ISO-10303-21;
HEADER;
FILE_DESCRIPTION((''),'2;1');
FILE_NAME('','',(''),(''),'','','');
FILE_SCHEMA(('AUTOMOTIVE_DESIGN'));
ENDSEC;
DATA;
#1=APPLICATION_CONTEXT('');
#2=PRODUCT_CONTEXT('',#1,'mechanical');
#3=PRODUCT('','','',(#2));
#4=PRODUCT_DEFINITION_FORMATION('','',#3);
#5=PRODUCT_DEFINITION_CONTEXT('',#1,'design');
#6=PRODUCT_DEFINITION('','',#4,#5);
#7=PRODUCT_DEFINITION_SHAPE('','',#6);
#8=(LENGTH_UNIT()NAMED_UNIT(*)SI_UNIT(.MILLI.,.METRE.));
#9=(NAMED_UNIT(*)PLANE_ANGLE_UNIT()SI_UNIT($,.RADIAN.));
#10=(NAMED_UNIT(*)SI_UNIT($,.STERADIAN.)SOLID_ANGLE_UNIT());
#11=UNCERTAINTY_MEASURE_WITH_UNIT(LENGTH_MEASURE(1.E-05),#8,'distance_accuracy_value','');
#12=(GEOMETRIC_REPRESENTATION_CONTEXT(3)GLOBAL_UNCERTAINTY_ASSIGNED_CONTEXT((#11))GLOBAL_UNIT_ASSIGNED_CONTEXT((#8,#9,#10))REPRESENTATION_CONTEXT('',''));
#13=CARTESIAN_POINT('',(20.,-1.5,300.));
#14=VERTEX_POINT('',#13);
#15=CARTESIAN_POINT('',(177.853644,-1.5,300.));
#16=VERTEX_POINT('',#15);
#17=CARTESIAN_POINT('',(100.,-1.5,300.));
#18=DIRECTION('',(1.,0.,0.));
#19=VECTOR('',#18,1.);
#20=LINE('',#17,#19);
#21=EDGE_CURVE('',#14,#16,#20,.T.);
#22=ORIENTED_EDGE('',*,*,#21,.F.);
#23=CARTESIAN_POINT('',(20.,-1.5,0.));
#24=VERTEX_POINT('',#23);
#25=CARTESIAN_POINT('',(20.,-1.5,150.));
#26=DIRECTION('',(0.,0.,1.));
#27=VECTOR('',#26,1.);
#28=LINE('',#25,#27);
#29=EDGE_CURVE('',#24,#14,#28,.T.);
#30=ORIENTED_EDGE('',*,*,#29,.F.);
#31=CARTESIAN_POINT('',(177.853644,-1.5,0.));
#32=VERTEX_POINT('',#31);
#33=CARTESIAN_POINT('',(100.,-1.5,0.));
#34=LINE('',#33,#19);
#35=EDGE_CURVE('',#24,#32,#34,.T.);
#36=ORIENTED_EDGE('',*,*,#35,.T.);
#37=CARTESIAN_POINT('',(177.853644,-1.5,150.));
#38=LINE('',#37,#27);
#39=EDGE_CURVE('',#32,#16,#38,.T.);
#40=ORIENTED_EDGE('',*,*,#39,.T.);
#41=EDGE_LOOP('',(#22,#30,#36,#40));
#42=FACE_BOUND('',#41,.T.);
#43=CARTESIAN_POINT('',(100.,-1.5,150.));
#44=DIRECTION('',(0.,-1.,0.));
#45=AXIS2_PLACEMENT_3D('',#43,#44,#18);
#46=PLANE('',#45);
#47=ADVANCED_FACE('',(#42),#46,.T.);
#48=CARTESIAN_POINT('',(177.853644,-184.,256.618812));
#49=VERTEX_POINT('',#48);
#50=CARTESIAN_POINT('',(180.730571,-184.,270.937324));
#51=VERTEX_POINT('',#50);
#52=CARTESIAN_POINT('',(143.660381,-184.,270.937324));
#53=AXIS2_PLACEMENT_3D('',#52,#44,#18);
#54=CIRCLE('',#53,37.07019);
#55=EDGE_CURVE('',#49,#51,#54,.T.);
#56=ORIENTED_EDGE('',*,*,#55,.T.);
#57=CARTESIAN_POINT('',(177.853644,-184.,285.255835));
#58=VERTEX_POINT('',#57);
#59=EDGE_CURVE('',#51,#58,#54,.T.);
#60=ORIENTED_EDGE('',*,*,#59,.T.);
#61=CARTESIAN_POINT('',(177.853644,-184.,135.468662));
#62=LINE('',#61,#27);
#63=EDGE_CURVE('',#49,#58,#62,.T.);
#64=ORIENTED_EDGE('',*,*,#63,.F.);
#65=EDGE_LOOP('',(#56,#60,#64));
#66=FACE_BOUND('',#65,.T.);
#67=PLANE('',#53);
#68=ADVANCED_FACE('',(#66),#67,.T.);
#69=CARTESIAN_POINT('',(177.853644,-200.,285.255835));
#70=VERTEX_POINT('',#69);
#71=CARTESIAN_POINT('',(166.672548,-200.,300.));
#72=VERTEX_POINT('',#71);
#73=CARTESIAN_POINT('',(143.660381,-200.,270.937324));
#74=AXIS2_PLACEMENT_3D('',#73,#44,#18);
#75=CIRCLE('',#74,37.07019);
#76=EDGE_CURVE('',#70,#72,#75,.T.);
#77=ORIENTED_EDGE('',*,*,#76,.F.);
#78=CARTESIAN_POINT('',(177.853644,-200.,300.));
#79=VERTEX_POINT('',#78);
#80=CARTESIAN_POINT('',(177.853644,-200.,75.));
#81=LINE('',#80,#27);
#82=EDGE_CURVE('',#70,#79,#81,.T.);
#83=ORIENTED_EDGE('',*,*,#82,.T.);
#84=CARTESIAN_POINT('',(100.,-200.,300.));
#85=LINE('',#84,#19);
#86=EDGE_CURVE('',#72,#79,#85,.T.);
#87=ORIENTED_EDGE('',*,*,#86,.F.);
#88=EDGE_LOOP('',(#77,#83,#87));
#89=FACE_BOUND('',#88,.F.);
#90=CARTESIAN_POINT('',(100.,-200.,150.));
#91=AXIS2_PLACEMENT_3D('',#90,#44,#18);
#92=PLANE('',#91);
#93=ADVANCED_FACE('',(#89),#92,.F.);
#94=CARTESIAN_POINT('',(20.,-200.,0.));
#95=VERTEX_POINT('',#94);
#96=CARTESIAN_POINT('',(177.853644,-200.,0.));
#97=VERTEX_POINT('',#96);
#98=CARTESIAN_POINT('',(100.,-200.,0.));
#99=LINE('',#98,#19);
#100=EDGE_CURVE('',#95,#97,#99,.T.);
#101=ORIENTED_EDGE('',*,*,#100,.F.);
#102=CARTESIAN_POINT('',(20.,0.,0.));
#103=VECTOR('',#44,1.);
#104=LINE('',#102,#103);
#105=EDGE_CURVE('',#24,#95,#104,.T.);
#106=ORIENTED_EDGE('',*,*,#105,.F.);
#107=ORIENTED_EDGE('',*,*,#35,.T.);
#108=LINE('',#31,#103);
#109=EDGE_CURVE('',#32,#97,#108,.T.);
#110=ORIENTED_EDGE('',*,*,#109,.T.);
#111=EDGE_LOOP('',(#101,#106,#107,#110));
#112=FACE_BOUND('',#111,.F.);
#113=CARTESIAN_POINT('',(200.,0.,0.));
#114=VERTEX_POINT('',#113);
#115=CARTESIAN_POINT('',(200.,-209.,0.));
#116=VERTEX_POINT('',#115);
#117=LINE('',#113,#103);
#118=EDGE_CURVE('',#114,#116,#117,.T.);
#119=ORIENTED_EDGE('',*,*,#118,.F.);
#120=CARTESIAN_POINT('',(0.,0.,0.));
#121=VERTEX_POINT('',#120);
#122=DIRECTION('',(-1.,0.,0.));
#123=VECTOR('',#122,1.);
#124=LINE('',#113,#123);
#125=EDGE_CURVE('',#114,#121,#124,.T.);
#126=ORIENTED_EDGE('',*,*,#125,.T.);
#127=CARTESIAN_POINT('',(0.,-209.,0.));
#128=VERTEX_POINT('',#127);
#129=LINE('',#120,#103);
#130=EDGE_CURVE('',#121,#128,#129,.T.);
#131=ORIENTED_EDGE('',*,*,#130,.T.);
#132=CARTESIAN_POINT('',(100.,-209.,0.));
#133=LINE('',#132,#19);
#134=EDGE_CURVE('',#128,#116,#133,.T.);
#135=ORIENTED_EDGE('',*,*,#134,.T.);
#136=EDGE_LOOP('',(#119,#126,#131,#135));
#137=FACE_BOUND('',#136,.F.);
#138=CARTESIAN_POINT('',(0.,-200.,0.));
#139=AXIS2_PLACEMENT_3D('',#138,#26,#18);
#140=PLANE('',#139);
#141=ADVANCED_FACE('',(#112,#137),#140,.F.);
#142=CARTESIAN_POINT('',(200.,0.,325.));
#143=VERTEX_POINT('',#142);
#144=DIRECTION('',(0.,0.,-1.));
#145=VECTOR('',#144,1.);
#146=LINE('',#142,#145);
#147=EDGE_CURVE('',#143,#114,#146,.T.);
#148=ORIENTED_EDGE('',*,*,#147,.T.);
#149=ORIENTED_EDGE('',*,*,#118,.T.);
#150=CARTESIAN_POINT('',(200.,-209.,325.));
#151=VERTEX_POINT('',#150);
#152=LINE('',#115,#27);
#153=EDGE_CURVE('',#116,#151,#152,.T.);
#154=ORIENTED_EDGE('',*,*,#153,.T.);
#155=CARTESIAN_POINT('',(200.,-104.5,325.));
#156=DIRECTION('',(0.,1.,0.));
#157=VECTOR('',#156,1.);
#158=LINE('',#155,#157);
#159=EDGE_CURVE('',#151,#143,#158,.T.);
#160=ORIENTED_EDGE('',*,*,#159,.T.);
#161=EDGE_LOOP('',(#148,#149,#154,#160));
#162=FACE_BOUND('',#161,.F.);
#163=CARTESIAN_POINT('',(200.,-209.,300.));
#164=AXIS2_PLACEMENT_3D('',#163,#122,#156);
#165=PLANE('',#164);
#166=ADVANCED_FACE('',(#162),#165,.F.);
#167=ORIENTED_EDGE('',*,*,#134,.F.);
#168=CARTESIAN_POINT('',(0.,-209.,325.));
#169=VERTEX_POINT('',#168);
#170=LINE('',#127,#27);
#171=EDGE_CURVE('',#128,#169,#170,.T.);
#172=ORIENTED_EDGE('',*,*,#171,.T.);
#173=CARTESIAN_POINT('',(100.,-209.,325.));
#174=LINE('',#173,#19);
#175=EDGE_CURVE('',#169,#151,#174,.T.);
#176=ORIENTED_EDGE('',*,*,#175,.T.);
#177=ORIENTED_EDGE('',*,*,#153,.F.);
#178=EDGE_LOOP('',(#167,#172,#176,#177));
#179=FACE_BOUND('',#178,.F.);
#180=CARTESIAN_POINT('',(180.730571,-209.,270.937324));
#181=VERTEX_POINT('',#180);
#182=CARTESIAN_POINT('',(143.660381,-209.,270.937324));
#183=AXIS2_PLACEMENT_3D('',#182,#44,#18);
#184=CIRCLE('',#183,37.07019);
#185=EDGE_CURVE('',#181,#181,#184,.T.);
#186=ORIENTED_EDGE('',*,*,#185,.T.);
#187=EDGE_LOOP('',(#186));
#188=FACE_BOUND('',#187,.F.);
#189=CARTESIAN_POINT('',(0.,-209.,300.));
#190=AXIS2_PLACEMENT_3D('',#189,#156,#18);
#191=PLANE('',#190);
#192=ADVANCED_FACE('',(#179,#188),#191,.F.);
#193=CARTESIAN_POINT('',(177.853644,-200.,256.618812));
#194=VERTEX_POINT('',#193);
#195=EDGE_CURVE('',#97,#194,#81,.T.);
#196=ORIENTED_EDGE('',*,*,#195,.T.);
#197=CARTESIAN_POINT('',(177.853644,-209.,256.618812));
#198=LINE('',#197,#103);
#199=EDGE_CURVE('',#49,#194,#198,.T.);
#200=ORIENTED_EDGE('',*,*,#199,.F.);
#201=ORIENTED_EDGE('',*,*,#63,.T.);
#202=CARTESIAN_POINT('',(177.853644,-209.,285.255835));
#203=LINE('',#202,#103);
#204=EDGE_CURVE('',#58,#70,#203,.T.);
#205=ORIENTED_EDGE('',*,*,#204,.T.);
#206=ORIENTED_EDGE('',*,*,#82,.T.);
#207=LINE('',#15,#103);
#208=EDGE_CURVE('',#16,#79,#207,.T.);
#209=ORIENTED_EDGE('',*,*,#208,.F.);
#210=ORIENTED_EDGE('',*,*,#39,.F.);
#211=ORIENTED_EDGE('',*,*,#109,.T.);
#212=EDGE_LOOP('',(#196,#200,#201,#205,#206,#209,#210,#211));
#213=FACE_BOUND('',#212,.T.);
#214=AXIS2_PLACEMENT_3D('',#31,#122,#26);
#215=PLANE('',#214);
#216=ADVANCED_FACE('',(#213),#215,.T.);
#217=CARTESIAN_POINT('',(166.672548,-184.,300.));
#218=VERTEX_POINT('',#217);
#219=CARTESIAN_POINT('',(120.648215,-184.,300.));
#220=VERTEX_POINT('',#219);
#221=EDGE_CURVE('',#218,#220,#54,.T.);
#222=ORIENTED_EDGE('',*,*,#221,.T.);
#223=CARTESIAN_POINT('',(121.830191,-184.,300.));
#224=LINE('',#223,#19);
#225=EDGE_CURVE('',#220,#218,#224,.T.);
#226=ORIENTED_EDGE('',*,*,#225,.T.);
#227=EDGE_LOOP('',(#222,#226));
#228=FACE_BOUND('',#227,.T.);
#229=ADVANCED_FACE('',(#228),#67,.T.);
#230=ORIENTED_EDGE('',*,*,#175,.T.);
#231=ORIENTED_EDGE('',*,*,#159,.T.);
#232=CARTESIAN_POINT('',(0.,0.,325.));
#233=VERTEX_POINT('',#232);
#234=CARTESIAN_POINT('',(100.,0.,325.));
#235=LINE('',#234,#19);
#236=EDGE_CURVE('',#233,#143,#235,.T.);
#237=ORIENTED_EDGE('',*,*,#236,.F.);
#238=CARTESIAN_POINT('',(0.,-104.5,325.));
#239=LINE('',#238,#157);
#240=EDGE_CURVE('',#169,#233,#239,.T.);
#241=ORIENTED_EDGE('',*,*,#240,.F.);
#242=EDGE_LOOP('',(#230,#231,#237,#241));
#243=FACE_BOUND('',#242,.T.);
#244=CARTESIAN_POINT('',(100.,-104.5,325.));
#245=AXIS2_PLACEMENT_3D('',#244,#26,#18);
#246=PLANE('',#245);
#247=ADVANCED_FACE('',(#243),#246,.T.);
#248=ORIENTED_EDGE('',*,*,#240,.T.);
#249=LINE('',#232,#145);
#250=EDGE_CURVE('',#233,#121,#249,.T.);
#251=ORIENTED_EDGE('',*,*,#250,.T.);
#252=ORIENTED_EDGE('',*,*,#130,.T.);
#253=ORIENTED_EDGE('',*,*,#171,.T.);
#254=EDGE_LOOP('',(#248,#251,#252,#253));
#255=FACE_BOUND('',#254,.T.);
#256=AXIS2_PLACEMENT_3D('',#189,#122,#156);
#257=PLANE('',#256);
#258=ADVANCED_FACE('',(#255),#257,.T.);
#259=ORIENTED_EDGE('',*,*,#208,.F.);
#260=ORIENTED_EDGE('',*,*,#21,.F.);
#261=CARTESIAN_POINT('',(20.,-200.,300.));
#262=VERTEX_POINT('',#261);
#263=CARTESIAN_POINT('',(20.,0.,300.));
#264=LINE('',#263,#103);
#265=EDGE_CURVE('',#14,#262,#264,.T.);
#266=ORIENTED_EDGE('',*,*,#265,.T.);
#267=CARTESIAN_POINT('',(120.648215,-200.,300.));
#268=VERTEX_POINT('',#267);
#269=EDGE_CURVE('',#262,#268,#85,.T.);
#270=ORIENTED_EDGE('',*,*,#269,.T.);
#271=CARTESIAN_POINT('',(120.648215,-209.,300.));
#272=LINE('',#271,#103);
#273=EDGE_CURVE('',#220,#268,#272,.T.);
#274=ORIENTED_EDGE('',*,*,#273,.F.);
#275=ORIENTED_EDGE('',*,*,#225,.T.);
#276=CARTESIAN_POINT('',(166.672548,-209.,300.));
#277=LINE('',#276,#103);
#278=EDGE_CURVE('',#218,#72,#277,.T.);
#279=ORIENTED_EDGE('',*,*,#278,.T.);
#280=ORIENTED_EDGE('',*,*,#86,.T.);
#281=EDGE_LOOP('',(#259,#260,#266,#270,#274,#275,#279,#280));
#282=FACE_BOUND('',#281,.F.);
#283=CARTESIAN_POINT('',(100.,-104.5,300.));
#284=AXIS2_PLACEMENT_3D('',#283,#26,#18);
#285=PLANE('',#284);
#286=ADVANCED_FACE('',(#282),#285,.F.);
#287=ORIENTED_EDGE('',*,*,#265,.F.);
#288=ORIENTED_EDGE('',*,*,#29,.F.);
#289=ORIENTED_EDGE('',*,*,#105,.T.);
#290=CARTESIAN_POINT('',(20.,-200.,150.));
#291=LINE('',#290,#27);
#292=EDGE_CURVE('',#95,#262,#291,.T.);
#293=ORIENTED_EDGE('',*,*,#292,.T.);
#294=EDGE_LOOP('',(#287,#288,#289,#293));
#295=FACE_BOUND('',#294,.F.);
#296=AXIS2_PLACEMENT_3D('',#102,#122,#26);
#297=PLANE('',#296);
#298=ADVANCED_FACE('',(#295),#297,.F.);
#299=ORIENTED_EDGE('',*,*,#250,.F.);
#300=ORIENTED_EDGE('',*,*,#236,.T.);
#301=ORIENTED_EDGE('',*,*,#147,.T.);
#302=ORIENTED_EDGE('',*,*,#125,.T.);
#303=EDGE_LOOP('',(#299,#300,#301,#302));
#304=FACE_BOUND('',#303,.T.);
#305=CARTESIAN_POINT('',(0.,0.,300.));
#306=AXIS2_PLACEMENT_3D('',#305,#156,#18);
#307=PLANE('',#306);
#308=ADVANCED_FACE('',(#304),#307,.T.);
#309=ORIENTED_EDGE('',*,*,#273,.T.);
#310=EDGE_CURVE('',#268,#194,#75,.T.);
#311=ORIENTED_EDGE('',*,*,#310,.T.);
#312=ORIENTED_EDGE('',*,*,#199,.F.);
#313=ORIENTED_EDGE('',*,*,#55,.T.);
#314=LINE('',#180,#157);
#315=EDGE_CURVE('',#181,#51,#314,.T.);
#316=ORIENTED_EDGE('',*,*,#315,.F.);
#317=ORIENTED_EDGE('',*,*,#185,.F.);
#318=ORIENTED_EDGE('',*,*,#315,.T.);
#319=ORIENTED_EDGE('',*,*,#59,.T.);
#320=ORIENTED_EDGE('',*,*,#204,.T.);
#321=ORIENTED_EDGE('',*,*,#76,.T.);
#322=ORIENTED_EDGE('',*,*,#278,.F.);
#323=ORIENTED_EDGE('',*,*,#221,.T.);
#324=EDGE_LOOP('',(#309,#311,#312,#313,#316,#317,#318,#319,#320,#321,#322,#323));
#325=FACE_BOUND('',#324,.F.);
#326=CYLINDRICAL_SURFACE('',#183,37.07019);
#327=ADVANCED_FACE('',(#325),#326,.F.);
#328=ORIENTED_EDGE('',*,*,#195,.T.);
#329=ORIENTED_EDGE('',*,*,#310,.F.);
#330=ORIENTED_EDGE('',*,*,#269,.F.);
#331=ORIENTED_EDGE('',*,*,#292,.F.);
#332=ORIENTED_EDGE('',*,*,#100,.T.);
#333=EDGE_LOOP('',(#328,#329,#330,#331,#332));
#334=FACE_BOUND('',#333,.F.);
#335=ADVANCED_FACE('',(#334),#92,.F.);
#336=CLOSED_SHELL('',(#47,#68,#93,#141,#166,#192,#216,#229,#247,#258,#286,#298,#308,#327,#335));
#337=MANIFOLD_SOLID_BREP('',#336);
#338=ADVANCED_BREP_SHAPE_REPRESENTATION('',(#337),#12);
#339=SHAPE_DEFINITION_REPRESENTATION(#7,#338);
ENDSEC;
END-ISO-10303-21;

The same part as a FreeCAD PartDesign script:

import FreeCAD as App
import Part
import Sketcher
from FreeCAD import Vector
Q = App.Units.Quantity

doc = App.newDocument("Part")
params = doc.addObject("Spreadsheet::Sheet", "Params")
for row, (alias, value) in enumerate([
    ("sketch1_width", "20 mm"),
    ("sketch1_height", "300 mm"),
    ("pad1_length", "200 mm"),
    ("sketch2_width", "200 mm"),
    ("sketch2_height", "300 mm"),
    ("pad2_length", "1.5 mm"),
    ("sketch3_height", "300 mm"),
    ("pad3_length", "200 mm"),
    ("sketch4_width", "200 mm"),
    ("sketch4_height", "300 mm"),
    ("pad4_length", "9 mm"),
    ("sketch5_width", "200 mm"),
    ("sketch5_height", "209 mm"),
    ("pad5_length", "25 mm"),
    ("pocket1_length", "25 mm"),
], start=1):
    params.set(f"A{row}", alias)
    params.set(f"B{row}", "=" + value)
    params.setAlias(f"B{row}", alias)

body = doc.addObject("PartDesign::Body", "Body")

# Sketch on XZ plane
sketch1 = body.newObject("Sketcher::SketchObject", "Sketch")
sketch1.AttachmentSupport = (doc.getObject("XZ_Plane"), [""])
sketch1.MapMode = "FlatFace"
sketch1.addGeometry([
    Part.LineSegment(Vector(0, 300, 0), Vector(0, 0, 0)),
    Part.LineSegment(Vector(0, 0, 0), Vector(20, 0, 0)),
    Part.LineSegment(Vector(20, 0, 0), Vector(20, 300, 0)),
    Part.LineSegment(Vector(20, 300, 0), Vector(0, 300, 0)),
], False)
sketch1.addConstraint([
    Sketcher.Constraint("Coincident", 0, 2, 1, 1),
    Sketcher.Constraint("Coincident", 1, 2, 2, 1),
    Sketcher.Constraint("Coincident", 2, 2, 3, 1),
    Sketcher.Constraint("Coincident", 3, 2, 0, 1),
    Sketcher.Constraint("Vertical", 0),
    Sketcher.Constraint("Horizontal", 1),
    Sketcher.Constraint("Vertical", 2),
    Sketcher.Constraint("Horizontal", 3),
    Sketcher.Constraint("Coincident", 0, 2, -1, 1),
    Sketcher.Constraint("DistanceX", 1, 1, 1, 2, Q("20 mm")),
    Sketcher.Constraint("DistanceY", 0, 2, 0, 1, Q("300 mm")),
])
sketch1.setExpression("Constraints[9]", "Params.sketch1_width")
sketch1.setExpression("Constraints[10]", "Params.sketch1_height")
pad1 = body.newObject("PartDesign::Pad", "Pad")
pad1.Profile = sketch1
pad1.setExpression("Length", "Params.pad1_length")

# Sketch on XZ plane
sketch2 = body.newObject("Sketcher::SketchObject", "Sketch001")
sketch2.AttachmentSupport = (doc.getObject("XZ_Plane"), [""])
sketch2.MapMode = "FlatFace"
sketch2.addGeometry([
    Part.LineSegment(Vector(0, 300, 0), Vector(0, 0, 0)),
    Part.LineSegment(Vector(0, 0, 0), Vector(200, 0, 0)),
    Part.LineSegment(Vector(200, 0, 0), Vector(200, 300, 0)),
    Part.LineSegment(Vector(200, 300, 0), Vector(0, 300, 0)),
], False)
sketch2.addConstraint([
    Sketcher.Constraint("Coincident", 0, 2, 1, 1),
    Sketcher.Constraint("Coincident", 1, 2, 2, 1),
    Sketcher.Constraint("Coincident", 2, 2, 3, 1),
    Sketcher.Constraint("Coincident", 3, 2, 0, 1),
    Sketcher.Constraint("Vertical", 0),
    Sketcher.Constraint("Horizontal", 1),
    Sketcher.Constraint("Vertical", 2),
    Sketcher.Constraint("Horizontal", 3),
    Sketcher.Constraint("Coincident", 0, 2, -1, 1),
    Sketcher.Constraint("DistanceX", 1, 1, 1, 2, Q("200 mm")),
    Sketcher.Constraint("DistanceY", 0, 2, 0, 1, Q("300 mm")),
])
sketch2.setExpression("Constraints[9]", "Params.sketch2_width")
sketch2.setExpression("Constraints[10]", "Params.sketch2_height")
pad2 = body.newObject("PartDesign::Pad", "Pad001")
pad2.Profile = sketch2
pad2.setExpression("Length", "Params.pad2_length")

# Sketch on XZ plane
sketch3 = body.newObject("Sketcher::SketchObject", "Sketch002")
sketch3.AttachmentSupport = (doc.getObject("XZ_Plane"), [""])
sketch3.MapMode = "FlatFace"
sketch3.AttachmentOffset = App.Placement(Vector(0, 0, 1.5), App.Rotation())
sketch3.addGeometry([
    Part.LineSegment(Vector(178, 300, 0), Vector(178, 0, 0)),
    Part.LineSegment(Vector(178, 0, 0), Vector(200, 0, 0)),
    Part.LineSegment(Vector(200, 0, 0), Vector(200, 300, 0)),
    Part.LineSegment(Vector(200, 300, 0), Vector(178, 300, 0)),
], False)
sketch3.addConstraint([
    Sketcher.Constraint("Coincident", 0, 2, 1, 1),
    Sketcher.Constraint("Coincident", 1, 2, 2, 1),
    Sketcher.Constraint("Coincident", 2, 2, 3, 1),
    Sketcher.Constraint("Coincident", 3, 2, 0, 1),
    Sketcher.Constraint("Vertical", 0),
    Sketcher.Constraint("Horizontal", 1),
    Sketcher.Constraint("Vertical", 2),
    Sketcher.Constraint("Horizontal", 3),
    Sketcher.Constraint("PointOnObject", 0, 2, -1),
    Sketcher.Constraint("DistanceY", 0, 2, 0, 1, Q("300 mm")),
    Sketcher.Constraint("DistanceX", -1, 1, 1, 2, Q("200 mm")),
    Sketcher.Constraint("DistanceX", 1, 1, 1, 2, Q("22.146356 mm")),
])
sketch3.setExpression("Constraints[9]", "Params.sketch3_height")
pad3 = body.newObject("PartDesign::Pad", "Pad002")
pad3.Profile = sketch3
pad3.setExpression("Length", "Params.pad3_length")

# Sketch on XZ plane
sketch4 = body.newObject("Sketcher::SketchObject", "Sketch003")
sketch4.AttachmentSupport = (doc.getObject("XZ_Plane"), [""])
sketch4.MapMode = "FlatFace"
sketch4.AttachmentOffset = App.Placement(Vector(0, 0, 200), App.Rotation())
sketch4.addGeometry([
    Part.LineSegment(Vector(0, 300, 0), Vector(0, 0, 0)),
    Part.LineSegment(Vector(0, 0, 0), Vector(200, 0, 0)),
    Part.LineSegment(Vector(200, 0, 0), Vector(200, 300, 0)),
    Part.LineSegment(Vector(200, 300, 0), Vector(0, 300, 0)),
], False)
sketch4.addConstraint([
    Sketcher.Constraint("Coincident", 0, 2, 1, 1),
    Sketcher.Constraint("Coincident", 1, 2, 2, 1),
    Sketcher.Constraint("Coincident", 2, 2, 3, 1),
    Sketcher.Constraint("Coincident", 3, 2, 0, 1),
    Sketcher.Constraint("Vertical", 0),
    Sketcher.Constraint("Horizontal", 1),
    Sketcher.Constraint("Vertical", 2),
    Sketcher.Constraint("Horizontal", 3),
    Sketcher.Constraint("Coincident", 0, 2, -1, 1),
    Sketcher.Constraint("DistanceX", 1, 1, 1, 2, Q("200 mm")),
    Sketcher.Constraint("DistanceY", 0, 2, 0, 1, Q("300 mm")),
])
sketch4.setExpression("Constraints[9]", "Params.sketch4_width")
sketch4.setExpression("Constraints[10]", "Params.sketch4_height")
pad4 = body.newObject("PartDesign::Pad", "Pad003")
pad4.Profile = sketch4
pad4.setExpression("Length", "Params.pad4_length")

# Sketch on XY plane
sketch5 = body.newObject("Sketcher::SketchObject", "Sketch004")
sketch5.AttachmentSupport = (doc.getObject("XY_Plane"), [""])
sketch5.MapMode = "FlatFace"
sketch5.AttachmentOffset = App.Placement(Vector(0, 0, 300), App.Rotation())
sketch5.addGeometry([
    Part.LineSegment(Vector(0, 0, 0), Vector(0, -209, 0)),
    Part.LineSegment(Vector(0, -209, 0), Vector(200, -209, 0)),
    Part.LineSegment(Vector(200, -209, 0), Vector(200, 0, 0)),
    Part.LineSegment(Vector(200, 0, 0), Vector(0, 0, 0)),
], False)
sketch5.addConstraint([
    Sketcher.Constraint("Coincident", 0, 2, 1, 1),
    Sketcher.Constraint("Coincident", 1, 2, 2, 1),
    Sketcher.Constraint("Coincident", 2, 2, 3, 1),
    Sketcher.Constraint("Coincident", 3, 2, 0, 1),
    Sketcher.Constraint("Vertical", 0),
    Sketcher.Constraint("Horizontal", 1),
    Sketcher.Constraint("Vertical", 2),
    Sketcher.Constraint("Horizontal", 3),
    Sketcher.Constraint("Coincident", 3, 2, -1, 1),
    Sketcher.Constraint("DistanceX", 1, 1, 1, 2, Q("200 mm")),
    Sketcher.Constraint("DistanceY", 0, 2, 0, 1, Q("209 mm")),
])
sketch5.setExpression("Constraints[9]", "Params.sketch5_width")
sketch5.setExpression("Constraints[10]", "Params.sketch5_height")
pad5 = body.newObject("PartDesign::Pad", "Pad004")
pad5.Profile = sketch5
pad5.setExpression("Length", "Params.pad5_length")

# Sketch on XZ plane
sketch6 = body.newObject("Sketcher::SketchObject", "Sketch005")
sketch6.AttachmentSupport = (doc.getObject("XZ_Plane"), [""])
sketch6.MapMode = "FlatFace"
sketch6.AttachmentOffset = App.Placement(Vector(0, 0, 209), App.Rotation())
sketch6.addGeometry(Part.Circle(Vector(144, 271, 0), Vector(0, 0, 1), 37), False)
sketch6.addConstraint([
    Sketcher.Constraint("Diameter", 0, Q("74.140379 mm")),
    Sketcher.Constraint("DistanceX", -1, 1, 0, 3, Q("143.660381 mm")),
    Sketcher.Constraint("DistanceY", -1, 1, 0, 3, Q("270.937324 mm")),
])
pocket1 = body.newObject("PartDesign::Pocket", "Pocket")
pocket1.Profile = sketch6
pocket1.setExpression("Length", "Params.pocket1_length")

doc.recompute()
